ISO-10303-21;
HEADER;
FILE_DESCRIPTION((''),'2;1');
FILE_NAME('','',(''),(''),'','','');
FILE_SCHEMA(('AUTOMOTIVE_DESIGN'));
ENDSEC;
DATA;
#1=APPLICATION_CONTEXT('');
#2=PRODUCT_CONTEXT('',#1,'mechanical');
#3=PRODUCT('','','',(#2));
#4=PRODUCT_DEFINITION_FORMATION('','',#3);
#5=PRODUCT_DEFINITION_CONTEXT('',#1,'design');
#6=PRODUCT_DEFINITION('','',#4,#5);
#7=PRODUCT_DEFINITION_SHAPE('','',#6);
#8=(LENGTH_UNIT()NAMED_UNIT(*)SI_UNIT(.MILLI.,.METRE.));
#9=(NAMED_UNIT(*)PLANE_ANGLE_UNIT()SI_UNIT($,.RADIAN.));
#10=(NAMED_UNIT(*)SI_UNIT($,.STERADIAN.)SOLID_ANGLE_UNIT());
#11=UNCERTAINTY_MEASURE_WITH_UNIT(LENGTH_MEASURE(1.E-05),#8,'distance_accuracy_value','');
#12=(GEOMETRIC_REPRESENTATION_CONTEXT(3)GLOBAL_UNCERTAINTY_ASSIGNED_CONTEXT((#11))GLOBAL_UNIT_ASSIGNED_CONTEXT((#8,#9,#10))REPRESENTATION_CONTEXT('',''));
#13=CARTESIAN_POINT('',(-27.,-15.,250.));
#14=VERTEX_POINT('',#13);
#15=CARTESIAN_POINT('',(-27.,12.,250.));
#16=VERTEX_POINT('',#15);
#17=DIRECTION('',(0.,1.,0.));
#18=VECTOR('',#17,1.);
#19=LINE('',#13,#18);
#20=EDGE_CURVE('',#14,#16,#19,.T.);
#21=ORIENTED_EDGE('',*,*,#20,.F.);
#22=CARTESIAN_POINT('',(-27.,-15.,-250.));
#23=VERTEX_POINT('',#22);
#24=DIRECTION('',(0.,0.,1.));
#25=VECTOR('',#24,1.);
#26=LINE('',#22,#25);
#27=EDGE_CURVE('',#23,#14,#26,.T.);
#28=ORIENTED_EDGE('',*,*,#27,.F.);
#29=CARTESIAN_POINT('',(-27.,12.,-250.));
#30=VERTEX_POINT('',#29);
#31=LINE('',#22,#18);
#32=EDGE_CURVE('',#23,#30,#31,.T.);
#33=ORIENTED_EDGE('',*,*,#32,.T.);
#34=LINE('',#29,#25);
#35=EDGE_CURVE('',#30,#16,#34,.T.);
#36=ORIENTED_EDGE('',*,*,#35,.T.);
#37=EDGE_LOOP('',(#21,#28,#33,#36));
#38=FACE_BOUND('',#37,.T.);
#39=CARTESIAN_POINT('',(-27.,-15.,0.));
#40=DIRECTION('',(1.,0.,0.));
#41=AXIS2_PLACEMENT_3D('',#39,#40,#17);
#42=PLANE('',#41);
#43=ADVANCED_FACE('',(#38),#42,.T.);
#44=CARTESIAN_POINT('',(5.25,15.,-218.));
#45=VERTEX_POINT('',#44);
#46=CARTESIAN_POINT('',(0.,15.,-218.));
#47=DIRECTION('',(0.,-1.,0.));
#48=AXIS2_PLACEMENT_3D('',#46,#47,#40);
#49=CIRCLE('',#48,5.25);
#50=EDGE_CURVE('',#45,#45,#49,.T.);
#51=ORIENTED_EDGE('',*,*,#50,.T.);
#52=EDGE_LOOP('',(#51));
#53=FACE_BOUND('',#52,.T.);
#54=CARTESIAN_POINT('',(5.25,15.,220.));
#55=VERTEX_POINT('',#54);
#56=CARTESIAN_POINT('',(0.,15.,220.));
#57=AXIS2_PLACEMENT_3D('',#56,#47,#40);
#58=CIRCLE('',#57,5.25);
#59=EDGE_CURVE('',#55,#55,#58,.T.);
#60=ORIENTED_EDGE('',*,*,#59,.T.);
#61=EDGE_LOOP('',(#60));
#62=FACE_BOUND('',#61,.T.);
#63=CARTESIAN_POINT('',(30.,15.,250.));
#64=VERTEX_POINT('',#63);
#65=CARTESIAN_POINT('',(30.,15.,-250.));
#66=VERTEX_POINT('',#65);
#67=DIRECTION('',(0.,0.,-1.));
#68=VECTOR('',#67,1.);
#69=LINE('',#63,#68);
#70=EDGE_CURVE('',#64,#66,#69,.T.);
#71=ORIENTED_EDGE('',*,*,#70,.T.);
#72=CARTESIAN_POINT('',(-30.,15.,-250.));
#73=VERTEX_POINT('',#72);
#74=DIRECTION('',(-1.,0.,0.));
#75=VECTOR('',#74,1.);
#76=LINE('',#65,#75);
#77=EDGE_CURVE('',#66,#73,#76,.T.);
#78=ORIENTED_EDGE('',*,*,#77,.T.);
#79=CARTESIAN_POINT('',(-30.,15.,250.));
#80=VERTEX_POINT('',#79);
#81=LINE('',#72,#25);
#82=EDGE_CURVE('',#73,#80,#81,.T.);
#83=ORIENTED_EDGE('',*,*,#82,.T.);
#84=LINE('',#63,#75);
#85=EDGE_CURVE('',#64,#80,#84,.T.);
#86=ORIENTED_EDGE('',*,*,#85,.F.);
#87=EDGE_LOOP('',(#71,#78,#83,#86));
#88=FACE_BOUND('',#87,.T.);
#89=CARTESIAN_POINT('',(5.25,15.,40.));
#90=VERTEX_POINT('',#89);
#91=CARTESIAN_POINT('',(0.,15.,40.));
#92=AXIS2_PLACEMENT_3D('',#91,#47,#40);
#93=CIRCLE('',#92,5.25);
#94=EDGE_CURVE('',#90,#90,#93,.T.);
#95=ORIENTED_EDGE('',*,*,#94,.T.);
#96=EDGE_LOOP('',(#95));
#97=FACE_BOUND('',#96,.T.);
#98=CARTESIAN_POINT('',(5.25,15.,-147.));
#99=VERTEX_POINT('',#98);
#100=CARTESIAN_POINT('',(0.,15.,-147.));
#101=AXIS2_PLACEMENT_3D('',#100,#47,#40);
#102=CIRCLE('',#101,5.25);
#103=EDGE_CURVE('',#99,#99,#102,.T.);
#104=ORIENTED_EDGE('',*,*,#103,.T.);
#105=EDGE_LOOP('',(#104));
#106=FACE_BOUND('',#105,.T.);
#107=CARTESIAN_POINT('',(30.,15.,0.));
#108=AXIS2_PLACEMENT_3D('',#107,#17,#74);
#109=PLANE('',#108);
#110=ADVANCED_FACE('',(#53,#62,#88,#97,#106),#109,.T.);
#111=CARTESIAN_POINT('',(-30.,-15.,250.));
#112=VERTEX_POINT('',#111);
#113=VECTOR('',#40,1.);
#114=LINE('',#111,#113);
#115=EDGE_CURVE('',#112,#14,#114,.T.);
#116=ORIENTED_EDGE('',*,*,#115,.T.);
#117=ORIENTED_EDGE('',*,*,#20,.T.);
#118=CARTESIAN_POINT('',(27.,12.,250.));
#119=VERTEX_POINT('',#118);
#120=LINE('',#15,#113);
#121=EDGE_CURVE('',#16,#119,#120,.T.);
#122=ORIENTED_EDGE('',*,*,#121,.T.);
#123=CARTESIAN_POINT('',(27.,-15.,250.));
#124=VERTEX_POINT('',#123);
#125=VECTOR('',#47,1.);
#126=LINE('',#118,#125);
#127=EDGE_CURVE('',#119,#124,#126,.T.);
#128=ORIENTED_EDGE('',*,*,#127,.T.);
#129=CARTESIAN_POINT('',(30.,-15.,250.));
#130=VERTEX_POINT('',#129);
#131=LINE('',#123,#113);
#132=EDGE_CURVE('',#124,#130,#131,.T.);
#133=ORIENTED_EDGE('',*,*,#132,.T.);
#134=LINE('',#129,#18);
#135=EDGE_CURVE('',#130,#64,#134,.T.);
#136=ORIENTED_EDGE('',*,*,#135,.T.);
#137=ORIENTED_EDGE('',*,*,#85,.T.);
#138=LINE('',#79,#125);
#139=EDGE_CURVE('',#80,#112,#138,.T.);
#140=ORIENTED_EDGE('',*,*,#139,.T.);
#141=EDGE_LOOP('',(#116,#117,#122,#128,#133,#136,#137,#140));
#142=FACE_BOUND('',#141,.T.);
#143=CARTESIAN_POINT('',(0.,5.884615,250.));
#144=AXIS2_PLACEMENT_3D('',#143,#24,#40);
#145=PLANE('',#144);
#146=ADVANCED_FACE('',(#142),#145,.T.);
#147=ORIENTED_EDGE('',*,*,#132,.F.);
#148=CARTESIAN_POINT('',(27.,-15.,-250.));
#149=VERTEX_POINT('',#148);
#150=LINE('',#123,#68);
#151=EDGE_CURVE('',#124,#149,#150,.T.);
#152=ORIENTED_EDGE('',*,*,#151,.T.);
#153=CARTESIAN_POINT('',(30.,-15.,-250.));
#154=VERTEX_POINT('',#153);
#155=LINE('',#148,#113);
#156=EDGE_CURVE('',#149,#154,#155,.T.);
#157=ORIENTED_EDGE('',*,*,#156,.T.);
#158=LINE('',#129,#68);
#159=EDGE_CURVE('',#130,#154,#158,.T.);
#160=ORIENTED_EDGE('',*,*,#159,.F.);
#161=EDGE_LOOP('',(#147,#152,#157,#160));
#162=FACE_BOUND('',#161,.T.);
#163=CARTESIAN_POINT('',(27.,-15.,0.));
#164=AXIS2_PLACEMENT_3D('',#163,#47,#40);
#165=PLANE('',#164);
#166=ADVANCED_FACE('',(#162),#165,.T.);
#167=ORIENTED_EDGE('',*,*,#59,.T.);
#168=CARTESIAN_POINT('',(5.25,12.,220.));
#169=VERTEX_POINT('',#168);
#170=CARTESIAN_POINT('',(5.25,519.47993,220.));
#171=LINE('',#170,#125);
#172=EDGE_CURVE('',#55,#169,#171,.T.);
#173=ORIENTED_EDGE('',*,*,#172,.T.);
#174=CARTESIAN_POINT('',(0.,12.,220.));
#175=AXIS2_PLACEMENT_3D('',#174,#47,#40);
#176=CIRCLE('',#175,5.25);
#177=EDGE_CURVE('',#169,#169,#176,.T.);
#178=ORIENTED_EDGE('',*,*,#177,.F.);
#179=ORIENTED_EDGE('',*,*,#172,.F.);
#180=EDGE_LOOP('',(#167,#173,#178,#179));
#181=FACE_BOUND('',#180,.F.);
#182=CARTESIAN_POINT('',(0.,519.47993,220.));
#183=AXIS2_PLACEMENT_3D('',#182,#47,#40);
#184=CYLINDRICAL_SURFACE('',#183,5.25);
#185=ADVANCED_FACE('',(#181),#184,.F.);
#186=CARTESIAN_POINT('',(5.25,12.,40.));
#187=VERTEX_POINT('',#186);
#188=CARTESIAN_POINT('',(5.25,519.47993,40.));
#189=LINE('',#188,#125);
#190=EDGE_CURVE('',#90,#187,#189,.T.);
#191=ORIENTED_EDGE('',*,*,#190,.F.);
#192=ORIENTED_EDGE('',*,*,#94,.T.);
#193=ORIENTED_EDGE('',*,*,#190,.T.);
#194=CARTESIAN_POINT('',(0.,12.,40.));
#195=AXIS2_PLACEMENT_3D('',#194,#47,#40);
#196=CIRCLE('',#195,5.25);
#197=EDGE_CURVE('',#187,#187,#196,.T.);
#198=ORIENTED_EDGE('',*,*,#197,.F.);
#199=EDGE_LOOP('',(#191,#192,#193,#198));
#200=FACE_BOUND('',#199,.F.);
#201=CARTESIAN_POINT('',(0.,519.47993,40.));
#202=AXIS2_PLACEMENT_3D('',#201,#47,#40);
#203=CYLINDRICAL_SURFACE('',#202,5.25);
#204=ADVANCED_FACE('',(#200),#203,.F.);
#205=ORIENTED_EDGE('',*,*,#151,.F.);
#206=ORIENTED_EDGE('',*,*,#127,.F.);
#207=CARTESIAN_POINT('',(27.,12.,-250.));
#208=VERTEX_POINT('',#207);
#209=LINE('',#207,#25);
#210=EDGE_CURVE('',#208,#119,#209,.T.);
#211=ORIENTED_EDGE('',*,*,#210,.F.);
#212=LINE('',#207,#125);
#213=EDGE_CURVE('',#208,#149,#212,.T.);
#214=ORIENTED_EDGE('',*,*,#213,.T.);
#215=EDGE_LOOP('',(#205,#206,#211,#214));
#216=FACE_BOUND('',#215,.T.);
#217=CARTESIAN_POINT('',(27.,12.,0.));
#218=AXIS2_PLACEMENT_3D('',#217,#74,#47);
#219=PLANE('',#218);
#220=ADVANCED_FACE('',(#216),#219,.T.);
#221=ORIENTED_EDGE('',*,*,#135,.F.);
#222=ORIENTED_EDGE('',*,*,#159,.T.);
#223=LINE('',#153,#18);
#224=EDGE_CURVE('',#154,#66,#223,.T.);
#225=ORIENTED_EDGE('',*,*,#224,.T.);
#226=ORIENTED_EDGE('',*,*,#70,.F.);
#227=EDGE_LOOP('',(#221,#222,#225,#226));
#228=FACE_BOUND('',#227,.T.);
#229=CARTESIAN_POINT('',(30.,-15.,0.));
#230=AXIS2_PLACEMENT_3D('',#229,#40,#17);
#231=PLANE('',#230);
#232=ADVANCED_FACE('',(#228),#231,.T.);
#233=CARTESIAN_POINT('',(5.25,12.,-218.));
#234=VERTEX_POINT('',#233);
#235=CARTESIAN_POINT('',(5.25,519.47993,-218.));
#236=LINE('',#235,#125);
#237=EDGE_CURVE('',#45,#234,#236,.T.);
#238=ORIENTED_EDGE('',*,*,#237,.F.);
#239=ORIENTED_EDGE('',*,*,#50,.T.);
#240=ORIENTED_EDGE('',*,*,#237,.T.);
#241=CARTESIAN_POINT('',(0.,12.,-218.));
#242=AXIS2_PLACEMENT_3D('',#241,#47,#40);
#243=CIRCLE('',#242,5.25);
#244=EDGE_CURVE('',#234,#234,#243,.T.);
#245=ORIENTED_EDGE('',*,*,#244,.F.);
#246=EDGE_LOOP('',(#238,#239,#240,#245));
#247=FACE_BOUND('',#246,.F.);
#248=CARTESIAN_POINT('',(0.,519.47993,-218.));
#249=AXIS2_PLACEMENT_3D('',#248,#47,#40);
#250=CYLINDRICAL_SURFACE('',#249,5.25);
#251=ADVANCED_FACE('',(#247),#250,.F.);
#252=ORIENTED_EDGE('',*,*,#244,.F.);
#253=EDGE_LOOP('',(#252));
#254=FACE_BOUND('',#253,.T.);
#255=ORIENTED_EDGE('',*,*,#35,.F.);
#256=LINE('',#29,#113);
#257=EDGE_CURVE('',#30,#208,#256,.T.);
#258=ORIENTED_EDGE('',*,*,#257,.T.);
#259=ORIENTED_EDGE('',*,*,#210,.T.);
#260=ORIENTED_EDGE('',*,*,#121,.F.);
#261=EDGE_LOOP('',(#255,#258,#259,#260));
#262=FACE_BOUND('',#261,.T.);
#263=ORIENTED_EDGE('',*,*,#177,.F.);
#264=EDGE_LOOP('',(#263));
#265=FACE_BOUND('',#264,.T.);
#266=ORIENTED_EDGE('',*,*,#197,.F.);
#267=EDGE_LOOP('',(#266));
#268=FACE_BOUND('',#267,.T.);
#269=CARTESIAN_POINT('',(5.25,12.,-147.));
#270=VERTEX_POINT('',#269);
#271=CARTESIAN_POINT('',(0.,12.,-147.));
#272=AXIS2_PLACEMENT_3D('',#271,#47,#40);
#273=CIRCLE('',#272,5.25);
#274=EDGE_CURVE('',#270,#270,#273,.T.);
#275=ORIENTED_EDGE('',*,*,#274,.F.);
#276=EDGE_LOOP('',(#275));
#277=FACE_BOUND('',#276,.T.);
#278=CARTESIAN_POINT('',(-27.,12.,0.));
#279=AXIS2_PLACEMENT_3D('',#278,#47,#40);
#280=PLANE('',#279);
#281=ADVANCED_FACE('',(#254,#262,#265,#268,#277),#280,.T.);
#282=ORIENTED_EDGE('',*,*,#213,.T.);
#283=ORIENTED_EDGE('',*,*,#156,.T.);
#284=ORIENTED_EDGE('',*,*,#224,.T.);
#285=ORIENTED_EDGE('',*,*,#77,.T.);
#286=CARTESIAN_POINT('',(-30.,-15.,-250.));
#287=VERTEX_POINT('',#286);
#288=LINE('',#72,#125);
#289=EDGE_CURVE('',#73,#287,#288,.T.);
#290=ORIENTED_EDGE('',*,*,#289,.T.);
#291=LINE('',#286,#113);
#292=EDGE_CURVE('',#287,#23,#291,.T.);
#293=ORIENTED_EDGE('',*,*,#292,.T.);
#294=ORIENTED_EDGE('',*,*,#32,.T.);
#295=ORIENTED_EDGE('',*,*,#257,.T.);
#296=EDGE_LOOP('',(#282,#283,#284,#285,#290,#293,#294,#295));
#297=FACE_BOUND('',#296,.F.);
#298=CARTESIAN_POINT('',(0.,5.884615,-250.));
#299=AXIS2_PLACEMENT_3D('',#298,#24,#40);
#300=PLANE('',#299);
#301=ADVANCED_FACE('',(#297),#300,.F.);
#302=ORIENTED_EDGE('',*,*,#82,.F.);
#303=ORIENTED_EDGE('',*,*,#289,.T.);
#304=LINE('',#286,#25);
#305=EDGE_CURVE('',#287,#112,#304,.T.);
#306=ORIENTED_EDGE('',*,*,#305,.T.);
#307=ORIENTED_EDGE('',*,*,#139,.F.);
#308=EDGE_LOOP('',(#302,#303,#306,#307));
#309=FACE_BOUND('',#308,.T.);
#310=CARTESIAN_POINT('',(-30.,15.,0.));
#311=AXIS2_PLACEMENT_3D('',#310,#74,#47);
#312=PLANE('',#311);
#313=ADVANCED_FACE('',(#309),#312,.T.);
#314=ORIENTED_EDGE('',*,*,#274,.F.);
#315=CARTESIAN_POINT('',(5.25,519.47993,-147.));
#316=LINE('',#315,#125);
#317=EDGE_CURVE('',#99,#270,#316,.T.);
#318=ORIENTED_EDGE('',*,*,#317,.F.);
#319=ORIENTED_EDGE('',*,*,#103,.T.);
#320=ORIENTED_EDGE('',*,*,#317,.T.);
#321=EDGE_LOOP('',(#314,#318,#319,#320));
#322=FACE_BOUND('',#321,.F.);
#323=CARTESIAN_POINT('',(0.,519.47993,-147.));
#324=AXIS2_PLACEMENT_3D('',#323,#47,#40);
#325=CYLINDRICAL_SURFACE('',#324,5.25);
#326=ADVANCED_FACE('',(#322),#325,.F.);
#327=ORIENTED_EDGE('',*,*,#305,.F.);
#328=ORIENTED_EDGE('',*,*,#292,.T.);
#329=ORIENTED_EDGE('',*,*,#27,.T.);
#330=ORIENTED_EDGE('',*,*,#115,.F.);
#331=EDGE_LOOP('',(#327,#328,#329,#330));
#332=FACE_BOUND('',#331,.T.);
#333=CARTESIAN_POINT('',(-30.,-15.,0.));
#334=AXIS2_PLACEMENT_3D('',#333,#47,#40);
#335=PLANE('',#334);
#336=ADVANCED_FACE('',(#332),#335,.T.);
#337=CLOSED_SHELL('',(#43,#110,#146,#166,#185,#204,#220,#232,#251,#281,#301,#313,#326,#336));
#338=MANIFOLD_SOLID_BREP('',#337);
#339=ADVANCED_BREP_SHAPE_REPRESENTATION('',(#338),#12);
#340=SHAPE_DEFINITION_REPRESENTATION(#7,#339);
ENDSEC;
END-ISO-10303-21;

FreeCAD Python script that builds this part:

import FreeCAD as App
import Part
import Sketcher
Q = App.Units.Quantity

doc = App.newDocument("Part")
body = doc.addObject("PartDesign::Body", "Body")

# Sketch on XY plane
sketch1 = body.newObject("Sketcher::SketchObject", "Sketch")
sketch1.AttachmentSupport = (doc.getObject("XY_Plane"), [""])
sketch1.MapMode = "FlatFace"
sketch1.addGeometry([
    Part.LineSegment(App.Vector(30, 15, 0), App.Vector(-30, 15, 0)),  # 0
    Part.LineSegment(App.Vector(-30, 15, 0), App.Vector(-30, -15, 0)),  # 1
    Part.LineSegment(App.Vector(-30, -15, 0), App.Vector(-27, -15, 0)),  # 2
    Part.LineSegment(App.Vector(-27, -15, 0), App.Vector(-27, 12, 0)),  # 3
    Part.LineSegment(App.Vector(-27, 12, 0), App.Vector(27, 12, 0)),  # 4
    Part.LineSegment(App.Vector(27, 12, 0), App.Vector(27, -15, 0)),  # 5
    Part.LineSegment(App.Vector(27, -15, 0), App.Vector(30, -15, 0)),  # 6
    Part.LineSegment(App.Vector(30, -15, 0), App.Vector(30, 15, 0)),  # 7
], False)
sketch1.addConstraint([
    Sketcher.Constraint("Coincident", 0, 2, 1, 1),
    Sketcher.Constraint("Coincident", 1, 2, 2, 1),
    Sketcher.Constraint("Coincident", 2, 2, 3, 1),
    Sketcher.Constraint("Coincident", 3, 2, 4, 1),
    Sketcher.Constraint("Coincident", 4, 2, 5, 1),
    Sketcher.Constraint("Coincident", 5, 2, 6, 1),
    Sketcher.Constraint("Coincident", 6, 2, 7, 1),
    Sketcher.Constraint("Coincident", 7, 2, 0, 1),
    Sketcher.Constraint("Horizontal", 0),
    Sketcher.Constraint("Vertical", 1),
    Sketcher.Constraint("Horizontal", 2),
    Sketcher.Constraint("Vertical", 3),
    Sketcher.Constraint("Horizontal", 4),
    Sketcher.Constraint("Vertical", 5),
    Sketcher.Constraint("Horizontal", 6),
    Sketcher.Constraint("Vertical", 7),
    Sketcher.Constraint("Symmetric", 0, 2, 6, 2, -1, 1),
    Sketcher.Constraint("Symmetric", 2, 2, 5, 2, -2),
    Sketcher.Constraint("DistanceX", 0, 2, 0, 1, Q("60 mm")),
    Sketcher.Constraint("DistanceX", 2, 1, 2, 2, Q("3 mm")),
    Sketcher.Constraint("DistanceY", 1, 2, 1, 1, Q("30 mm")),
    Sketcher.Constraint("DistanceY", 3, 1, 3, 2, Q("27 mm")),
])
pad1 = body.newObject("PartDesign::Pad", "Pad")
pad1.Profile = sketch1
pad1.Length = 500
pad1.Midplane = True

# Sketch on XZ plane
sketch2 = body.newObject("Sketcher::SketchObject", "Sketch001")
sketch2.AttachmentSupport = (doc.getObject("XZ_Plane"), [""])
sketch2.MapMode = "FlatFace"
sketch2.AttachmentOffset = App.Placement(App.Vector(0, 0, -15), App.Rotation())
sketch2.addGeometry([
    Part.Circle(App.Vector(0, -218, 0), App.Vector(0, 0, 1), 5),
    Part.Circle(App.Vector(0, -147, 0), App.Vector(0, 0, 1), 5),
], False)
sketch2.addConstraint([
    Sketcher.Constraint("Equal", 0, 1),
    Sketcher.Constraint("PointOnObject", 0, 3, -2),
    Sketcher.Constraint("PointOnObject", 1, 3, -2),
    Sketcher.Constraint("Diameter", 0, Q("10.5 mm")),
    Sketcher.Constraint("DistanceY", 0, 3, -1, 1, Q("218 mm")),
    Sketcher.Constraint("DistanceY", 1, 3, -1, 1, Q("147 mm")),
])
doc.recompute()
hole = body.newObject("PartDesign::Hole", "Hole")
hole.Profile = sketch2
hole.ThreadType = "None"
hole.Diameter = 10.5
hole.DepthType = "ThroughAll"
hole.Reversed = True

# Sketch on XZ plane
sketch3 = body.newObject("Sketcher::SketchObject", "Sketch002")
sketch3.AttachmentSupport = (doc.getObject("XZ_Plane"), [""])
sketch3.MapMode = "FlatFace"
sketch3.AttachmentOffset = App.Placement(App.Vector(0, 0, -15), App.Rotation())
sketch3.addGeometry([
    Part.Circle(App.Vector(0, 220, 0), App.Vector(0, 0, 1), 5),
    Part.Circle(App.Vector(0, 40, 0), App.Vector(0, 0, 1), 5),
], False)
sketch3.addConstraint([
    Sketcher.Constraint("Equal", 0, 1),
    Sketcher.Constraint("PointOnObject", 0, 3, -2),
    Sketcher.Constraint("PointOnObject", 1, 3, -2),
    Sketcher.Constraint("Diameter", 0, Q("10.5 mm")),
    Sketcher.Constraint("DistanceY", -1, 1, 0, 3, Q("220 mm")),
    Sketcher.Constraint("DistanceY", -1, 1, 1, 3, Q("40 mm")),
])
doc.recompute()
hole2 = body.newObject("PartDesign::Hole", "Hole001")
hole2.Profile = sketch3
hole2.ThreadType = "None"
hole2.Diameter = 10.5
hole2.DepthType = "ThroughAll"
hole2.Reversed = True

doc.recompute()
